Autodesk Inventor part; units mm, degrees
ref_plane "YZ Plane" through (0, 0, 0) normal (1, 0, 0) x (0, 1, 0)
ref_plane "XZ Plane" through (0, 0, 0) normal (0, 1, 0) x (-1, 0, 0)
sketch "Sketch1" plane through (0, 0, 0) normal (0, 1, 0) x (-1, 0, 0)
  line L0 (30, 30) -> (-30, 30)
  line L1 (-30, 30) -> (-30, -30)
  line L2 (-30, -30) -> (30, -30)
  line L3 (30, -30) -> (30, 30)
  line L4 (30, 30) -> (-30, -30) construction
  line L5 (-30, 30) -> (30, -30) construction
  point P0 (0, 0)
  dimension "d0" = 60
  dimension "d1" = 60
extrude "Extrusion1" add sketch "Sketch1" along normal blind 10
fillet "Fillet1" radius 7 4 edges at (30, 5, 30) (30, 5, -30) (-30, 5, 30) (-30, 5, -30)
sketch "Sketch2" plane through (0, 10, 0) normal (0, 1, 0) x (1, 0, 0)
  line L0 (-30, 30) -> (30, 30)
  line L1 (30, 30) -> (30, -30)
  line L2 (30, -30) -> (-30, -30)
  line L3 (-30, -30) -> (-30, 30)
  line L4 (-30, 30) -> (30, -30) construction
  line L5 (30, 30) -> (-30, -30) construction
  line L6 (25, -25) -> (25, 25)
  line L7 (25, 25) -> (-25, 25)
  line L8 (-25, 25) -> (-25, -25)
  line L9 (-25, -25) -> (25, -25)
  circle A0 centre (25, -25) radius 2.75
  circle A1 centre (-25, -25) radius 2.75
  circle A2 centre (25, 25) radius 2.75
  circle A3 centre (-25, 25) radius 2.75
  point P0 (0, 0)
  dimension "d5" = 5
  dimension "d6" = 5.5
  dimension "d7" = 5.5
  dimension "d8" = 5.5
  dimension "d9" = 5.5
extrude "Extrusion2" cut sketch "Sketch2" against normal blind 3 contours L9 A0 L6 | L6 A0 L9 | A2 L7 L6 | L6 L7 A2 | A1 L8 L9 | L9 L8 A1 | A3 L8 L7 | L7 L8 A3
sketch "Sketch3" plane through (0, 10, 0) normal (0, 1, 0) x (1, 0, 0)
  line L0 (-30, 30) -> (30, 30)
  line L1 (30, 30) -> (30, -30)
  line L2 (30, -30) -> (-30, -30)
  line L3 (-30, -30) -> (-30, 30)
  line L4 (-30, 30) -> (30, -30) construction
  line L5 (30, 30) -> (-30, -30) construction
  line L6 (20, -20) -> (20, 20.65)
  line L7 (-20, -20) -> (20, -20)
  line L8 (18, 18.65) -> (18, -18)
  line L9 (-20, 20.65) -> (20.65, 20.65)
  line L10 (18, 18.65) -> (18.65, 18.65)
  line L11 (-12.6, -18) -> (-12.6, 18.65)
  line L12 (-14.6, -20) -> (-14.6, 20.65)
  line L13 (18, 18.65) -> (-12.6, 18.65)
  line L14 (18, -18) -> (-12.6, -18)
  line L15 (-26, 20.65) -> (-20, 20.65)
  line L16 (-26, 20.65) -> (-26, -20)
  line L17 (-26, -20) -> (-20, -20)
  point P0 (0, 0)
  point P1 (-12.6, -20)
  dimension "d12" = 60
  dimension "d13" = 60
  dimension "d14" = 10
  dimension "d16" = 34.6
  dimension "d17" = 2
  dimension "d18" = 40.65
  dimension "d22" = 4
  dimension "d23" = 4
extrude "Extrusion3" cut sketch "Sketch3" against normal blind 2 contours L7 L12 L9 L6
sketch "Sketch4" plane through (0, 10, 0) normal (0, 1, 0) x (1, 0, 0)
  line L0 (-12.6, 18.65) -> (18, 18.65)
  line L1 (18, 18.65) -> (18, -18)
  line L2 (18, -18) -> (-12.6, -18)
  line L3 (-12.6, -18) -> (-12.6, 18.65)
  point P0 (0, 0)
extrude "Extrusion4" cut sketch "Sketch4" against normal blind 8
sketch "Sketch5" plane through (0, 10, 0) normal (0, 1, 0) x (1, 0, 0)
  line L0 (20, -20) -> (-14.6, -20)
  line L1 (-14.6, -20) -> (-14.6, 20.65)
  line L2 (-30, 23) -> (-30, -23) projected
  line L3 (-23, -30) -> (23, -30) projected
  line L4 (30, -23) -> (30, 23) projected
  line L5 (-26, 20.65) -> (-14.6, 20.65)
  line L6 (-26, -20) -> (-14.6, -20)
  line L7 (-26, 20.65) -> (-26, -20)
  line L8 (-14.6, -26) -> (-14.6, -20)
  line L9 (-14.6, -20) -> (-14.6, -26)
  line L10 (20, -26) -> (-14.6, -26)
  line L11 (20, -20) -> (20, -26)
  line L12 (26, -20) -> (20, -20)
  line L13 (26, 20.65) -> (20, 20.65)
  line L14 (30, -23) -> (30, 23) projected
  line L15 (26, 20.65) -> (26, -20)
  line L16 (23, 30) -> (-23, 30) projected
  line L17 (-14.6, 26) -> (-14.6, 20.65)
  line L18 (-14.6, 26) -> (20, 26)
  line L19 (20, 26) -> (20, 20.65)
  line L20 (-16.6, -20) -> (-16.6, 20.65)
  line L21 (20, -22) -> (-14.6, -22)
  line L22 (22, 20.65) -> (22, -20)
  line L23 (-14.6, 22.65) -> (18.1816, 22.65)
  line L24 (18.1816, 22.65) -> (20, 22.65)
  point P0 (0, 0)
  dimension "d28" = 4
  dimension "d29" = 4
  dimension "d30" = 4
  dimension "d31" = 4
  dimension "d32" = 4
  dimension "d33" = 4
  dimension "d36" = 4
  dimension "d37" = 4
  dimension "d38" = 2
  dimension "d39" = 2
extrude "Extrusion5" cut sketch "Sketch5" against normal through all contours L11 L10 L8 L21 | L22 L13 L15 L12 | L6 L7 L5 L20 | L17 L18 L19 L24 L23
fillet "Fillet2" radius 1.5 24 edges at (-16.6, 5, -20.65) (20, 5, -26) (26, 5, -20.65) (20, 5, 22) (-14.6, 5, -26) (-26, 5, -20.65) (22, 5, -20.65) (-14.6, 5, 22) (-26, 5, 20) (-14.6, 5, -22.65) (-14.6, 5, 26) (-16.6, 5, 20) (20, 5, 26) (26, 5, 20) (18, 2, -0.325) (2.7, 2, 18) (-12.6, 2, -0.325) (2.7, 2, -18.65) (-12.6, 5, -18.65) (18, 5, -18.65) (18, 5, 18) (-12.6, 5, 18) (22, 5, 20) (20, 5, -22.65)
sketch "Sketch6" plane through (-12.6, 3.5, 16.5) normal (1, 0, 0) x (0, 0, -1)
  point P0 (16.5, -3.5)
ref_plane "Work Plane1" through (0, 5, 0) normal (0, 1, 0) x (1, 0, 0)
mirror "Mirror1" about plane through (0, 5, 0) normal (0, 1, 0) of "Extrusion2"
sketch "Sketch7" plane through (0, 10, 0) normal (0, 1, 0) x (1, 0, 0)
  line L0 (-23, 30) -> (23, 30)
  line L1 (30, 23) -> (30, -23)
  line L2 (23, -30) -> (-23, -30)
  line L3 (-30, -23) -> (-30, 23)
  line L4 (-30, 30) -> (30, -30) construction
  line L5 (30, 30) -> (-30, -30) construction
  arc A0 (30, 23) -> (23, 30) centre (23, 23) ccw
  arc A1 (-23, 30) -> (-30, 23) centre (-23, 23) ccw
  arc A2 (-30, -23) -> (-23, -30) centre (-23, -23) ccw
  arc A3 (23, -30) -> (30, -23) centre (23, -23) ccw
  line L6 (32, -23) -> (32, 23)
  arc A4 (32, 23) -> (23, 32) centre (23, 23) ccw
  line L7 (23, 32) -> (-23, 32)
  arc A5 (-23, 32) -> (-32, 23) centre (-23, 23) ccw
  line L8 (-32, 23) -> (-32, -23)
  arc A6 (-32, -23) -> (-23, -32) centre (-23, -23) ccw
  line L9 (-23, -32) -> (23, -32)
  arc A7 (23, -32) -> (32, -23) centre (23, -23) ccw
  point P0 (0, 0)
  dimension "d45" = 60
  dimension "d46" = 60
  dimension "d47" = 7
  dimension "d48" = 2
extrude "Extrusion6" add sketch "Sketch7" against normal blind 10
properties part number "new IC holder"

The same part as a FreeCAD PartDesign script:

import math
import FreeCAD as App
import Part
import Sketcher
Q = App.Units.Quantity


def edges_at(feature, points):
    """Names of the edges that pass closest to the given points."""
    edges = feature.Shape.Edges
    near = lambda p: min(range(len(edges)), key=lambda i: edges[i].distToShape(Part.Vertex(*p))[0])
    return sorted({f"Edge{near(p) + 1}" for p in points})


def add_polygon(sketch, points):
    """Adds a closed chain of lines whose ends are joined by coincident constraints."""
    first, n = sketch.GeometryCount, len(points)
    for a, b in zip(points, points[1:] + points[:1]):
        sketch.addGeometry(Part.LineSegment(App.Vector(*a, 0), App.Vector(*b, 0)), False)
    for i in range(n):
        sketch.addConstraint(Sketcher.Constraint("Coincident", first + i, 2, first + (i + 1) % n, 1))

doc = App.newDocument("Part")
body = doc.addObject("PartDesign::Body", "Body")

# Sketch on XZ plane
sketch1 = doc.addObject("Sketcher::SketchObject", "Sketch")
body.addObject(sketch1)
sketch1.AttachmentSupport = (doc.XZ_Plane, [""])
sketch1.MapMode = "FlatFace"
add_polygon(sketch1, [(-30, -30), (-30, 30), (30, 30), (30, -30)])  # lines 0-3
sketch1.addConstraint([
    Sketcher.Constraint("Vertical", 0),
    Sketcher.Constraint("Horizontal", 1),
    Sketcher.Constraint("Vertical", 2),
    Sketcher.Constraint("Horizontal", 3),
    Sketcher.Constraint("Symmetric", 0, 2, 2, 2, -1, 1),
    Sketcher.Constraint("Equal", 3, 0),
    Sketcher.Constraint("DistanceX", 1, 1, 1, 2, Q("60 mm")),
])
pad1 = doc.addObject("PartDesign::Pad", "Pad")
body.addObject(pad1)
pad1.Profile = sketch1
pad1.Length = 10
pad1.Reversed = True
doc.recompute()

fillet = doc.addObject("PartDesign::Fillet", "Fillet")
body.addObject(fillet)
fillet.Base = (pad1, edges_at(pad1, [
    (30, 5, 30),
    (30, 5, -30),
    (-30, 5, 30),
    (-30, 5, -30),
]))
fillet.Radius = 7

# Sketch on XZ plane
sketch2 = doc.addObject("Sketcher::SketchObject", "Sketch001")
body.addObject(sketch2)
sketch2.AttachmentSupport = (doc.XZ_Plane, [""])
sketch2.MapMode = "FlatFace"
sketch2.AttachmentOffset = App.Placement(App.Vector(0, 0, -10), App.Rotation())
sketch2.addGeometry([
    Part.Circle(App.Vector(25, 25, 0), App.Vector(0, 0, 1), 2.75),
    Part.Circle(App.Vector(25, -25, 0), App.Vector(0, 0, 1), 2.75),
    Part.Circle(App.Vector(-25, 25, 0), App.Vector(0, 0, 1), 2.75),
    Part.Circle(App.Vector(-25, -25, 0), App.Vector(0, 0, 1), 2.75),
], False)
sketch2.addConstraint([
    Sketcher.Constraint("Equal", 0, 1),
    Sketcher.Constraint("Equal", 1, 2),
    Sketcher.Constraint("Equal", 2, 3),
    Sketcher.Constraint("Symmetric", 1, 3, 2, 3, -1, 1),
    Sketcher.Constraint("Symmetric", 0, 3, 3, 3, -1, 1),
    Sketcher.Constraint("Symmetric", 0, 3, 2, 3, -2),
    Sketcher.Constraint("Diameter", 0, Q("5.5 mm")),
    Sketcher.Constraint("DistanceX", -1, 1, 0, 3, Q("25 mm")),
    Sketcher.Constraint("DistanceY", -1, 1, 0, 3, Q("25 mm")),
])
pocket1 = doc.addObject("PartDesign::Pocket", "Pocket")
body.addObject(pocket1)
pocket1.Profile = sketch2
pocket1.Length = 3
pocket1.Reversed = True

# Sketch on XZ plane
sketch3 = doc.addObject("Sketcher::SketchObject", "Sketch002")
body.addObject(sketch3)
sketch3.AttachmentSupport = (doc.XZ_Plane, [""])
sketch3.MapMode = "FlatFace"
sketch3.AttachmentOffset = App.Placement(App.Vector(0, 0, -10), App.Rotation())
add_polygon(sketch3, [(-14.6, 20), (20, 20), (20, -20.65), (-14.6, -20.65)])  # lines 0-3
add_polygon(sketch3, [(-12.6, -18.65), (18, -18.65), (18, 18), (-12.6, 18)])  # lines 4-7
sketch3.addConstraint([
    Sketcher.Constraint("Horizontal", 0),
    Sketcher.Constraint("Vertical", 1),
    Sketcher.Constraint("Horizontal", 2),
    Sketcher.Constraint("Vertical", 3),
    Sketcher.Constraint("Horizontal", 4),
    Sketcher.Constraint("Vertical", 5),
    Sketcher.Constraint("Horizontal", 6),
    Sketcher.Constraint("Vertical", 7),
    Sketcher.Constraint("DistanceX", 0, 1, 0, 2, Q("34.6 mm")),
    Sketcher.Constraint("DistanceX", 4, 2, 1, 2, Q("2 mm")),
    Sketcher.Constraint("DistanceY", 1, 2, 4, 2, Q("2 mm")),
    Sketcher.Constraint("DistanceY", 5, 2, 0, 2, Q("2 mm")),
    Sketcher.Constraint("DistanceX", 3, 2, 6, 2, Q("2 mm")),
    Sketcher.Constraint("DistanceY", 1, 2, 1, 1, Q("40.65 mm")),
    Sketcher.Constraint("DistanceX", -1, 1, 0, 2, Q("20 mm")),
    Sketcher.Constraint("DistanceY", -1, 1, 0, 2, Q("20 mm")),
])
pocket2 = doc.addObject("PartDesign::Pocket", "Pocket001")
body.addObject(pocket2)
pocket2.Profile = sketch3
pocket2.Length = 2
pocket2.Reversed = True

# Sketch on XZ plane
sketch4 = doc.addObject("Sketcher::SketchObject", "Sketch003")
body.addObject(sketch4)
sketch4.AttachmentSupport = (doc.XZ_Plane, [""])
sketch4.MapMode = "FlatFace"
sketch4.AttachmentOffset = App.Placement(App.Vector(0, 0, -10), App.Rotation())
add_polygon(sketch4, [(18, -18.65), (-12.6, -18.65), (-12.6, 18), (18, 18)])  # lines 0-3
sketch4.addConstraint([
    Sketcher.Constraint("Horizontal", 0),
    Sketcher.Constraint("Vertical", 1),
    Sketcher.Constraint("Horizontal", 2),
    Sketcher.Constraint("Vertical", 3),
    Sketcher.Constraint("DistanceX", 0, 2, 0, 1, Q("30.6 mm")),
    Sketcher.Constraint("DistanceY", -1, 1, 1, 2, Q("18 mm")),
    Sketcher.Constraint("DistanceX", -1, 1, 2, 2, Q("18 mm")),
    Sketcher.Constraint("DistanceY", 1, 1, 1, 2, Q("36.65 mm")),
])
pocket3 = doc.addObject("PartDesign::Pocket", "Pocket002")
body.addObject(pocket3)
pocket3.Profile = sketch4
pocket3.Length = 8
pocket3.Reversed = True

# Sketch on XZ plane
sketch5 = doc.addObject("Sketcher::SketchObject", "Sketch004")
body.addObject(sketch5)
sketch5.AttachmentSupport = (doc.XZ_Plane, [""])
sketch5.MapMode = "FlatFace"
sketch5.AttachmentOffset = App.Placement(App.Vector(0, 0, -10), App.Rotation())
add_polygon(sketch5, [(20, 26), (20, 22), (-14.6, 22), (-14.6, 26)])  # lines 0-3
add_polygon(sketch5, [(22, -20.65), (22, 20), (26, 20), (26, -20.65)])  # lines 4-7
add_polygon(sketch5, [(-26, 20), (-16.6, 20), (-16.6, -20.65), (-26, -20.65)])  # lines 8-11
add_polygon(sketch5, [(-14.6, -26), (-14.6, -22.65), (20, -22.65), (20, -26)])  # lines 12-15
sketch5.addConstraint([
    Sketcher.Constraint("Vertical", 0),
    Sketcher.Constraint("Horizontal", 1),
    Sketcher.Constraint("Vertical", 2),
    Sketcher.Constraint("Horizontal", 3),
    Sketcher.Constraint("Vertical", 4),
    Sketcher.Constraint("Horizontal", 5),
    Sketcher.Constraint("Vertical", 6),
    Sketcher.Constraint("Horizontal", 7),
    Sketcher.Constraint("Horizontal", 8),
    Sketcher.Constraint("Vertical", 9),
    Sketcher.Constraint("Horizontal", 10),
    Sketcher.Constraint("Vertical", 11),
    Sketcher.Constraint("Vertical", 12),
    Sketcher.Constraint("Horizontal", 13),
    Sketcher.Constraint("Vertical", 14),
    Sketcher.Constraint("Horizontal", 15),
    Sketcher.Constraint("Symmetric", 6, 2, 10, 2, -2),
    Sketcher.Constraint("Symmetric", 3, 2, 14, 2, -1),
    Sketcher.Constraint("Horizontal", 5, 2, 8, 2),
    Sketcher.Constraint("Vertical", 2, 2, 12, 2),
    Sketcher.Constraint("Equal", 7, 0),
    Sketcher.Constraint("DistanceX", 5, 1, 5, 2, Q("4 mm")),
    Sketcher.Constraint("DistanceX", 0, 2, 4, 2, Q("2 mm")),
    Sketcher.Constraint("DistanceY", 4, 2, 0, 2, Q("2 mm")),
    Sketcher.Constraint("DistanceX", 8, 2, 1, 2, Q("2 mm")),
    Sketcher.Constraint("DistanceY", 12, 2, 9, 2, Q("2 mm")),
    Sketcher.Constraint("DistanceX", 1, 2, 1, 1, Q("34.6 mm")),
    Sketcher.Constraint("DistanceX", 8, 1, 8, 2, Q("9.4 mm")),
    Sketcher.Constraint("DistanceY", -1, 1, 0, 2, Q("22 mm")),
    Sketcher.Constraint("DistanceY", 4, 1, 4, 2, Q("40.65 mm")),
])
pocket4 = doc.addObject("PartDesign::Pocket", "Pocket003")
body.addObject(pocket4)
pocket4.Profile = sketch5
pocket4.Type = "ThroughAll"
pocket4.Reversed = True
doc.recompute()

fillet2 = doc.addObject("PartDesign::Fillet", "Fillet001")
body.addObject(fillet2)
fillet2.Base = (pocket4, edges_at(pocket4, [
    (-16.6, 5, -20.65),
    (20, 5, -26),
    (26, 5, -20.65),
    (20, 5, 22),
    (-14.6, 5, -26),
    (-26, 5, -20.65),
    (22, 5, -20.65),
    (-14.6, 5, 22),
    (-26, 5, 20),
    (-14.6, 5, -22.65),
    (-14.6, 5, 26),
    (-16.6, 5, 20),
    (20, 5, 26),
    (26, 5, 20),
    (18, 2, -0.325),
    (2.7, 2, 18),
    (-12.6, 2, -0.325),
    (2.7, 2, -18.65),
    (-12.6, 5, -18.65),
    (18, 5, -18.65),
    (18, 5, 18),
    (-12.6, 5, 18),
    (22, 5, 20),
    (20, 5, -22.65),
]))
fillet2.Radius = 1.5
doc.recompute()

datumplane = doc.addObject("PartDesign::Plane", "DatumPlane")
body.addObject(datumplane)
datumplane.AttachmentSupport = (doc.XZ_Plane, [""])
datumplane.MapMode = "FlatFace"
datumplane.AttachmentOffset = App.Placement(App.Vector(0, 0, -5), App.Rotation())
mirrored = doc.addObject("PartDesign::Mirrored", "Mirrored")
body.addObject(mirrored)
mirrored.Originals = [pocket1]
mirrored.MirrorPlane = (datumplane, [""])
body.Tip = mirrored

# Sketch on XZ plane
sketch6 = doc.addObject("Sketcher::SketchObject", "Sketch005")
body.addObject(sketch6)
sketch6.AttachmentSupport = (doc.XZ_Plane, [""])
sketch6.MapMode = "FlatFace"
sketch6.AttachmentOffset = App.Placement(App.Vector(0, 0, -10), App.Rotation())
sketch6.addGeometry([
    Part.ArcOfCircle(Part.Circle(App.Vector(23, 23, 0), App.Vector(0, 0, 1), 9), math.radians(0), math.radians(90)),  # 0
    Part.LineSegment(App.Vector(32, 23, 0), App.Vector(32, -23, 0)),  # 1
    Part.ArcOfCircle(Part.Circle(App.Vector(23, -23, 0), App.Vector(0, 0, 1), 9), math.radians(-90), math.radians(0)),  # 2
    Part.LineSegment(App.Vector(23, -32, 0), App.Vector(-23, -32, 0)),  # 3
    Part.ArcOfCircle(Part.Circle(App.Vector(-23, -23, 0), App.Vector(0, 0, 1), 9), math.radians(180), math.radians(270)),  # 4
    Part.LineSegment(App.Vector(-32, -23, 0), App.Vector(-32, 23, 0)),  # 5
    Part.ArcOfCircle(Part.Circle(App.Vector(-23, 23, 0), App.Vector(0, 0, 1), 9), math.radians(90), math.radians(180)),  # 6
    Part.LineSegment(App.Vector(-23, 32, 0), App.Vector(23, 32, 0)),  # 7
    Part.ArcOfCircle(Part.Circle(App.Vector(-23, -23, 0), App.Vector(0, 0, 1), 7), math.radians(180), math.radians(270)),  # 8
    Part.LineSegment(App.Vector(-23, -30, 0), App.Vector(23, -30, 0)),  # 9
    Part.ArcOfCircle(Part.Circle(App.Vector(23, -23, 0), App.Vector(0, 0, 1), 7), math.radians(-90), math.radians(0)),  # 10
    Part.LineSegment(App.Vector(30, -23, 0), App.Vector(30, 23, 0)),  # 11
    Part.ArcOfCircle(Part.Circle(App.Vector(23, 23, 0), App.Vector(0, 0, 1), 7), math.radians(0), math.radians(90)),  # 12
    Part.LineSegment(App.Vector(23, 30, 0), App.Vector(-23, 30, 0)),  # 13
    Part.ArcOfCircle(Part.Circle(App.Vector(-23, 23, 0), App.Vector(0, 0, 1), 7), math.radians(90), math.radians(180)),  # 14
    Part.LineSegment(App.Vector(-30, 23, 0), App.Vector(-30, -23, 0)),  # 15
], False)
sketch6.addConstraint([
    Sketcher.Constraint("Tangent", 0, 1, 1, 1),
    Sketcher.Constraint("Tangent", 1, 2, 2, 2),
    Sketcher.Constraint("Tangent", 2, 1, 3, 1),
    Sketcher.Constraint("Tangent", 3, 2, 4, 2),
    Sketcher.Constraint("Tangent", 4, 1, 5, 1),
    Sketcher.Constraint("Tangent", 5, 2, 6, 2),
    Sketcher.Constraint("Tangent", 6, 1, 7, 1),
    Sketcher.Constraint("Tangent", 7, 2, 0, 2),
    Sketcher.Constraint("Tangent", 8, 2, 9, 1),
    Sketcher.Constraint("Tangent", 9, 2, 10, 1),
    Sketcher.Constraint("Tangent", 10, 2, 11, 1),
    Sketcher.Constraint("Tangent", 11, 2, 12, 1),
    Sketcher.Constraint("Tangent", 12, 2, 13, 1),
    Sketcher.Constraint("Tangent", 13, 2, 14, 1),
    Sketcher.Constraint("Tangent", 14, 2, 15, 1),
    Sketcher.Constraint("Tangent", 15, 2, 8, 1),
    Sketcher.Constraint("Vertical", 1),
    Sketcher.Constraint("Horizontal", 3),
    Sketcher.Constraint("Vertical", 5),
    Sketcher.Constraint("Horizontal", 7),
    Sketcher.Constraint("Horizontal", 9),
    Sketcher.Constraint("Vertical", 11),
    Sketcher.Constraint("Horizontal", 13),
    Sketcher.Constraint("Vertical", 15),
    Sketcher.Constraint("Coincident", 8, 3, 4, 3),
    Sketcher.Constraint("Coincident", 10, 3, 2, 3),
    Sketcher.Constraint("Coincident", 12, 3, 0, 3),
    Sketcher.Constraint("Equal", 0, 2),
    Sketcher.Constraint("Equal", 2, 4),
    Sketcher.Constraint("Equal", 4, 6),
    Sketcher.Constraint("Equal", 12, 14),
    Sketcher.Constraint("Symmetric", 0, 3, 4, 3, -1, 1),
    Sketcher.Constraint("Equal", 13, 1),
    Sketcher.Constraint("Radius", 8, Q("7 mm")),
    Sketcher.Constraint("Radius", 0, Q("9 mm")),
    Sketcher.Constraint("DistanceX", 3, 2, 3, 1, Q("46 mm")),
])
pad2 = doc.addObject("PartDesign::Pad", "Pad001")
body.addObject(pad2)
pad2.Profile = sketch6
pad2.Length = 10

doc.recompute()
